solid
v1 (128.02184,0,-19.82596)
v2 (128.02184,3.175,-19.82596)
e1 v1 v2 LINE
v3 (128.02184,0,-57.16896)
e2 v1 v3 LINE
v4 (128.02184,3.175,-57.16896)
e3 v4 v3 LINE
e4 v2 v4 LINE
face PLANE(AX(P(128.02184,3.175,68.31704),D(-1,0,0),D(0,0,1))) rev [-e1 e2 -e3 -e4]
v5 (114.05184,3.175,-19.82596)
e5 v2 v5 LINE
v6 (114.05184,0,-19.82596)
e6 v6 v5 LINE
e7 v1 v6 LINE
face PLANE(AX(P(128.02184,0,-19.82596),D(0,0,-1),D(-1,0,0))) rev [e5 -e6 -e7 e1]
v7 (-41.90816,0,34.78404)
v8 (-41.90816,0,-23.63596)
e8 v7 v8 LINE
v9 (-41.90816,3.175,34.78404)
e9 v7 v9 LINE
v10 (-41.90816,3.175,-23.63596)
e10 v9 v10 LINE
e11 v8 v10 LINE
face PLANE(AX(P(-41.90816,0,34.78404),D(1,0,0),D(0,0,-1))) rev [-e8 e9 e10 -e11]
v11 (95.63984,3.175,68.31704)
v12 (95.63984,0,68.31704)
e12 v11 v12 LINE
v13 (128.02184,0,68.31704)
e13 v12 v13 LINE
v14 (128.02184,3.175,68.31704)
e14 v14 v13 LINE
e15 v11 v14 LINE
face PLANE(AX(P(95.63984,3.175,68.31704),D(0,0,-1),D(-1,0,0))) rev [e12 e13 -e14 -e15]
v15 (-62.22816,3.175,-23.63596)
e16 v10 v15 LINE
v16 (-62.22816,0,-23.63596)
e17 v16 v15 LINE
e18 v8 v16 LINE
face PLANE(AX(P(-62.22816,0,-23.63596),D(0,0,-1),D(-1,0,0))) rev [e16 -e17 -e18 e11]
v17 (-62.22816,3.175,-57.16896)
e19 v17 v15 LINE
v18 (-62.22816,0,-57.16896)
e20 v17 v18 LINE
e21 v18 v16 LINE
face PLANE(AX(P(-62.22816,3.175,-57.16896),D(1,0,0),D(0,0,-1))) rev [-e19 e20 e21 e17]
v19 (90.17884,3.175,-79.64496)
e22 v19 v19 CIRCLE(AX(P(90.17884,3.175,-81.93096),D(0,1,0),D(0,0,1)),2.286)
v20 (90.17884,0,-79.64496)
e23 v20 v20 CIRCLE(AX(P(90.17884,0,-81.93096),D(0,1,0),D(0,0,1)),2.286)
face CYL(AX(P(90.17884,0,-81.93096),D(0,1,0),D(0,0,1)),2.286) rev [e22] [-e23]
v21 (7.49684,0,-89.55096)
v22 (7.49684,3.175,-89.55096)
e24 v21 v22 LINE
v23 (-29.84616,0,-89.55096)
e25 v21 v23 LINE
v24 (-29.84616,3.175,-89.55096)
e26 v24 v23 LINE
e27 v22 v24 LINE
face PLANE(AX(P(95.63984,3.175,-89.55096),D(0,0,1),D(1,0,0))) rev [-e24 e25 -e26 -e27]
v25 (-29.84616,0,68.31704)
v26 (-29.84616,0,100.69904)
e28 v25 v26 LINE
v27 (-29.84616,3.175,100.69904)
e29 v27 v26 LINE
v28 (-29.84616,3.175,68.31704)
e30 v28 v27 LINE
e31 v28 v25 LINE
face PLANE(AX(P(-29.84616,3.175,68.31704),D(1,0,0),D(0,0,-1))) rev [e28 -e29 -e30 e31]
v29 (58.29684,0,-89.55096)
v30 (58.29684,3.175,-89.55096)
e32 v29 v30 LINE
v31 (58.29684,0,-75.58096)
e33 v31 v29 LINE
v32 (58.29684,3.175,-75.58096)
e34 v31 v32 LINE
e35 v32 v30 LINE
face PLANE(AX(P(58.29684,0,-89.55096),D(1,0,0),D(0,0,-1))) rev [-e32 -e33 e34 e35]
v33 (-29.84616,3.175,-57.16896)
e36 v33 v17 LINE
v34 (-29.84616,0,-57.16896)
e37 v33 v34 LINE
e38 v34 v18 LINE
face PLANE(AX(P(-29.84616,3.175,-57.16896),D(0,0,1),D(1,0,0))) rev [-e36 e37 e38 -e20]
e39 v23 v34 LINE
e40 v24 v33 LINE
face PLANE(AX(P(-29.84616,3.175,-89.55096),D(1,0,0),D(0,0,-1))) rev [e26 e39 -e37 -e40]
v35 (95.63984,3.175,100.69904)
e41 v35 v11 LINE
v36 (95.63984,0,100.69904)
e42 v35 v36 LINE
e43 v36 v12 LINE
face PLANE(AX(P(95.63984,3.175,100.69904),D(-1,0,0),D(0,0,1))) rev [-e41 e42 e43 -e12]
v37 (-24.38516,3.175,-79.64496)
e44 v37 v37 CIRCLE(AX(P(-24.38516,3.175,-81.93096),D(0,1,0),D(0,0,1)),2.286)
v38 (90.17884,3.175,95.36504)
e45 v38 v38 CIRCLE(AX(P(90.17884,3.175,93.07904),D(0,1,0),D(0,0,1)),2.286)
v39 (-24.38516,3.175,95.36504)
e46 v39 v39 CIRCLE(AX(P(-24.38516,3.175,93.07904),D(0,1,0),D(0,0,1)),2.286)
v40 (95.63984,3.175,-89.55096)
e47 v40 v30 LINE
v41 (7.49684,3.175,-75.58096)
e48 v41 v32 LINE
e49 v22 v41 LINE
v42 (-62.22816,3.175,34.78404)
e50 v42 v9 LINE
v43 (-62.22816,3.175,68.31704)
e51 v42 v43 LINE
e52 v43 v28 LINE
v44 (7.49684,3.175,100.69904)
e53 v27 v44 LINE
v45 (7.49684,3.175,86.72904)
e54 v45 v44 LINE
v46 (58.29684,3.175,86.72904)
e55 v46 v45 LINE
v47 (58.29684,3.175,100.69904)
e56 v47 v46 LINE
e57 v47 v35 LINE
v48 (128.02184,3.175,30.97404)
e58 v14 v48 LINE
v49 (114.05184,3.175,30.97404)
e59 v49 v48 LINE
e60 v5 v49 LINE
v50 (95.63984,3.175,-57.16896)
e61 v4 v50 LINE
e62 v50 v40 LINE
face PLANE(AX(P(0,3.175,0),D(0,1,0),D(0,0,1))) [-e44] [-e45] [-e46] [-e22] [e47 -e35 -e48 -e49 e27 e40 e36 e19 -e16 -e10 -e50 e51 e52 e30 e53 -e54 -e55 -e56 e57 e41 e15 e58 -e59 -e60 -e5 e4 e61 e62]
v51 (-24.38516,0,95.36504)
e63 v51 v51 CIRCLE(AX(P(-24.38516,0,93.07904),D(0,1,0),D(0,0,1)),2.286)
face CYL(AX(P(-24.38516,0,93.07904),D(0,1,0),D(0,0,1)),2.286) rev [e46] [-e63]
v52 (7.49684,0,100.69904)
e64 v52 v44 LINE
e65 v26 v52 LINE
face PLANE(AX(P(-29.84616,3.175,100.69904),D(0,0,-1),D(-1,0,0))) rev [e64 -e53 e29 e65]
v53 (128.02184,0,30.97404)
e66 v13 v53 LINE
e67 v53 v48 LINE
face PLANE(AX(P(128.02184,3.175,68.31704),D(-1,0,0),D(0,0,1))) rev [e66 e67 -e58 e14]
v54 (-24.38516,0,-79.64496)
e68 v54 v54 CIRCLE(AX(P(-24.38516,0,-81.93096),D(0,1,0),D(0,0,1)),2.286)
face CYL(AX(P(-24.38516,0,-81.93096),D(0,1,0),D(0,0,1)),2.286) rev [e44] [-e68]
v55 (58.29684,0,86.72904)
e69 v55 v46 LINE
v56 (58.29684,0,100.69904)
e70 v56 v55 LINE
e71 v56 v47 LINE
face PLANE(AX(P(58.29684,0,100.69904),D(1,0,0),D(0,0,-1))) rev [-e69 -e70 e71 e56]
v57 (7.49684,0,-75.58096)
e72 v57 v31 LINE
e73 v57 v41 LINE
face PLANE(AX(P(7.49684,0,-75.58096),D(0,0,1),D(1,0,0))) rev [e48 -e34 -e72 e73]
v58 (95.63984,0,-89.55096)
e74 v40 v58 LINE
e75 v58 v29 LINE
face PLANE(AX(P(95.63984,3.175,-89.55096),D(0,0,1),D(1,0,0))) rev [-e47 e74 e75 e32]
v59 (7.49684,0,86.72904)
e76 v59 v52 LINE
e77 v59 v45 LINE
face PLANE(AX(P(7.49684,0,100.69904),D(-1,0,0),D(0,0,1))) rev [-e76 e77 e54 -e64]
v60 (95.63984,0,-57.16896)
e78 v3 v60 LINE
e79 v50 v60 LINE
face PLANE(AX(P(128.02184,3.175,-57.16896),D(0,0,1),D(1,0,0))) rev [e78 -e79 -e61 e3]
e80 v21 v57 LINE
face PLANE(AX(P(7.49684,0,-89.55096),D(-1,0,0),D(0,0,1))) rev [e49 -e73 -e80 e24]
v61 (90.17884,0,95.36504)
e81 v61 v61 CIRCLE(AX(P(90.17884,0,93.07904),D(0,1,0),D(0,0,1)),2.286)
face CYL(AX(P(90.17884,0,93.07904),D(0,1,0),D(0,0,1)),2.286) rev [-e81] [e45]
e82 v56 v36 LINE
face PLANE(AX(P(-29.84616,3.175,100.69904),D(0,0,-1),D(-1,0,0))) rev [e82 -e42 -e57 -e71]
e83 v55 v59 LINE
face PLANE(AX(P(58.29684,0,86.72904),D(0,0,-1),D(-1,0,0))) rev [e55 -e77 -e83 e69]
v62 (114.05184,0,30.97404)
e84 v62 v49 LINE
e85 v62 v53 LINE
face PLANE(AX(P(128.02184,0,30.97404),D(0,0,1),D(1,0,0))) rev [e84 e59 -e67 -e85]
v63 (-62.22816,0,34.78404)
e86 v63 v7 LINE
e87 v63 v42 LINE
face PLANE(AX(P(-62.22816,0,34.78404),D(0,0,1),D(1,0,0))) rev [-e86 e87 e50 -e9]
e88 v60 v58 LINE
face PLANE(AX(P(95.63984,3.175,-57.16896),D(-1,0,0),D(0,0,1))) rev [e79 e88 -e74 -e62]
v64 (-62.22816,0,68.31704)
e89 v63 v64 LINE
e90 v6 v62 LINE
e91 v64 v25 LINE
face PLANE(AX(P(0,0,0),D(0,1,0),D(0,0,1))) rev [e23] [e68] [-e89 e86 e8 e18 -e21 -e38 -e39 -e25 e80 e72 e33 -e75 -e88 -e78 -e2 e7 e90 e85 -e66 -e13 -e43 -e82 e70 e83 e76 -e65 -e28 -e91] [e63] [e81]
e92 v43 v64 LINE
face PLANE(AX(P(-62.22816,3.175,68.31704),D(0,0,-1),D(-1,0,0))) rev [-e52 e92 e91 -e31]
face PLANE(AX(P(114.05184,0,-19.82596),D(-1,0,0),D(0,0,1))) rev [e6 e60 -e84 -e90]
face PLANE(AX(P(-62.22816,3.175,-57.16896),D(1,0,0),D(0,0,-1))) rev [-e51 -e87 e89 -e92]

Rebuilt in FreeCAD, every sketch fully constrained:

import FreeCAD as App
import Part
import Sketcher
from FreeCAD import Vector
Q = App.Units.Quantity

doc = App.newDocument("Part")
body = doc.addObject("PartDesign::Body", "Body")

sketch1 = body.newObject("Sketcher::SketchObject", "Sketch")
sketch1.AttachmentSupport = (doc.getObject("XZ_Plane"), [""])
sketch1.MapMode = "FlatFace"
sketch1.addGeometry([
    Part.LineSegment(Vector(-62, 68, 0), Vector(-30, 68, 0)),
    Part.LineSegment(Vector(-30, 68, 0), Vector(-30, 101, 0)),
    Part.LineSegment(Vector(-30, 101, 0), Vector(96, 101, 0)),
    Part.LineSegment(Vector(96, 101, 0), Vector(96, 68, 0)),
    Part.LineSegment(Vector(96, 68, 0), Vector(128, 68, 0)),
    Part.LineSegment(Vector(128, 68, 0), Vector(128, -57, 0)),
    Part.LineSegment(Vector(128, -57, 0), Vector(96, -57, 0)),
    Part.LineSegment(Vector(96, -57, 0), Vector(96, -90, 0)),
    Part.LineSegment(Vector(96, -90, 0), Vector(-30, -90, 0)),
    Part.LineSegment(Vector(-30, -90, 0), Vector(-30, -57, 0)),
    Part.LineSegment(Vector(-30, -57, 0), Vector(-62, -57, 0)),
    Part.LineSegment(Vector(-62, -57, 0), Vector(-62, 68, 0)),
], False)
sketch1.addConstraint([
    Sketcher.Constraint("Coincident", 0, 2, 1, 1),
    Sketcher.Constraint("Coincident", 1, 2, 2, 1),
    Sketcher.Constraint("Coincident", 2, 2, 3, 1),
    Sketcher.Constraint("Coincident", 3, 2, 4, 1),
    Sketcher.Constraint("Coincident", 4, 2, 5, 1),
    Sketcher.Constraint("Coincident", 5, 2, 6, 1),
    Sketcher.Constraint("Coincident", 6, 2, 7, 1),
    Sketcher.Constraint("Coincident", 7, 2, 8, 1),
    Sketcher.Constraint("Coincident", 8, 2, 9, 1),
    Sketcher.Constraint("Coincident", 9, 2, 10, 1),
    Sketcher.Constraint("Coincident", 10, 2, 11, 1),
    Sketcher.Constraint("Coincident", 11, 2, 0, 1),
    Sketcher.Constraint("Horizontal", 0),
    Sketcher.Constraint("Vertical", 1),
    Sketcher.Constraint("Horizontal", 2),
    Sketcher.Constraint("Vertical", 3),
    Sketcher.Constraint("Horizontal", 4),
    Sketcher.Constraint("Vertical", 5),
    Sketcher.Constraint("Horizontal", 6),
    Sketcher.Constraint("Vertical", 7),
    Sketcher.Constraint("Horizontal", 8),
    Sketcher.Constraint("Vertical", 9),
    Sketcher.Constraint("Horizontal", 10),
    Sketcher.Constraint("Vertical", 11),
    Sketcher.Constraint("Horizontal", 0, 2, 3, 2),
    Sketcher.Constraint("Horizontal", 6, 2, 9, 2),
    Sketcher.Constraint("Vertical", 3, 2, 6, 2),
    Sketcher.Constraint("Vertical", 1, 2, 8, 2),
    Sketcher.Constraint("Equal", 0, 4),
    Sketcher.Constraint("Equal", 10, 1),
    Sketcher.Constraint("Equal", 8, 5),
    Sketcher.Constraint("Equal", 3, 7),
    Sketcher.Constraint("DistanceX", 0, 1, 0, 2, 32.382),
    Sketcher.Constraint("DistanceX", 2, 1, 2, 2, 125.486),
    Sketcher.Constraint("DistanceX", 0, 2, -1, 1, 29.84616),
    Sketcher.Constraint("DistanceY", -1, 1, 0, 2, 68.31704),
])
pad1 = body.newObject("PartDesign::Pad", "Pad")
pad1.Profile = sketch1
pad1.Length = Q("0.125 in")
pad1.Reversed = True

sketch2 = body.newObject("Sketcher::SketchObject", "Sketch001")
sketch2.AttachmentSupport = (doc.getObject("XZ_Plane"), [""])
sketch2.MapMode = "FlatFace"
sketch2.AttachmentOffset = App.Placement(Vector(0, 0, -0.125 * 25.4), App.Rotation())
sketch2.addGeometry([
    Part.Circle(Vector(-24.4, -81.9, 0), Vector(0, 0, 1), 2.3),
    Part.Circle(Vector(90.2, -81.9, 0), Vector(0, 0, 1), 2.3),
    Part.Circle(Vector(90.2, 93.1, 0), Vector(0, 0, 1), 2.3),
    Part.Circle(Vector(-24.4, 93.1, 0), Vector(0, 0, 1), 2.3),
], False)
sketch2.addConstraint([
    Sketcher.Constraint("Equal", 0, 1),
    Sketcher.Constraint("Equal", 1, 2),
    Sketcher.Constraint("Equal", 2, 3),
    Sketcher.Constraint("Horizontal", 0, 3, 1, 3),
    Sketcher.Constraint("Horizontal", 2, 3, 3, 3),
    Sketcher.Constraint("Vertical", 1, 3, 2, 3),
    Sketcher.Constraint("Vertical", 0, 3, 3, 3),
    Sketcher.Constraint("Diameter", 0, Q("0.18 in")),
    Sketcher.Constraint("DistanceX", 0, 3, 1, 3, 114.564),
    Sketcher.Constraint("DistanceY", 1, 3, 2, 3, 175.01),
    Sketcher.Constraint("DistanceX", 0, 3, -1, 1, 24.38516),
    Sketcher.Constraint("DistanceY", 0, 3, -1, 1, 81.93096),
])
pocket1 = body.newObject("PartDesign::Pocket", "Pocket")
pocket1.Profile = sketch2
pocket1.Type = "ThroughAll"
pocket1.Reversed = True

sketch3 = body.newObject("Sketcher::SketchObject", "Sketch002")
sketch3.AttachmentSupport = (doc.getObject("XZ_Plane"), [""])
sketch3.MapMode = "FlatFace"
sketch3.AttachmentOffset = App.Placement(Vector(0, 0, -0.125 * 25.4), App.Rotation())
sketch3.addGeometry([
    Part.LineSegment(Vector(-62, -24, 0), Vector(-62, 35, 0)),
    Part.LineSegment(Vector(-62, 35, 0), Vector(-42, 35, 0)),
    Part.LineSegment(Vector(-42, 35, 0), Vector(-42, -24, 0)),
    Part.LineSegment(Vector(-42, -24, 0), Vector(-62, -24, 0)),
    Part.LineSegment(Vector(7, -90, 0), Vector(7, -76, 0)),
    Part.LineSegment(Vector(7, -76, 0), Vector(58, -76, 0)),
    Part.LineSegment(Vector(58, -76, 0), Vector(58, -90, 0)),
    Part.LineSegment(Vector(58, -90, 0), Vector(7, -90, 0)),
    Part.LineSegment(Vector(114, -20, 0), Vector(114, 31, 0)),
    Part.LineSegment(Vector(114, 31, 0), Vector(128, 31, 0)),
    Part.LineSegment(Vector(128, 31, 0), Vector(128, -20, 0)),
    Part.LineSegment(Vector(128, -20, 0), Vector(114, -20, 0)),
    Part.LineSegment(Vector(7, 87, 0), Vector(7, 101, 0)),
    Part.LineSegment(Vector(7, 101, 0), Vector(58, 101, 0)),
    Part.LineSegment(Vector(58, 101, 0), Vector(58, 87, 0)),
    Part.LineSegment(Vector(58, 87, 0), Vector(7, 87, 0)),
], False)
sketch3.addConstraint([
    Sketcher.Constraint("Coincident", 0, 2, 1, 1),
    Sketcher.Constraint("Coincident", 1, 2, 2, 1),
    Sketcher.Constraint("Coincident", 2, 2, 3, 1),
    Sketcher.Constraint("Coincident", 3, 2, 0, 1),
    Sketcher.Constraint("Coincident", 4, 2, 5, 1),
    Sketcher.Constraint("Coincident", 5, 2, 6, 1),
    Sketcher.Constraint("Coincident", 6, 2, 7, 1),
    Sketcher.Constraint("Coincident", 7, 2, 4, 1),
    Sketcher.Constraint("Coincident", 8, 2, 9, 1),
    Sketcher.Constraint("Coincident", 9, 2, 10, 1),
    Sketcher.Constraint("Coincident", 10, 2, 11, 1),
    Sketcher.Constraint("Coincident", 11, 2, 8, 1),
    Sketcher.Constraint("Coincident", 12, 2, 13, 1),
    Sketcher.Constraint("Coincident", 13, 2, 14, 1),
    Sketcher.Constraint("Coincident", 14, 2, 15, 1),
    Sketcher.Constraint("Coincident", 15, 2, 12, 1),
    Sketcher.Constraint("Vertical", 0),
    Sketcher.Constraint("Horizontal", 1),
    Sketcher.Constraint("Vertical", 2),
    Sketcher.Constraint("Horizontal", 3),
    Sketcher.Constraint("Vertical", 4),
    Sketcher.Constraint("Horizontal", 5),
    Sketcher.Constraint("Vertical", 6),
    Sketcher.Constraint("Horizontal", 7),
    Sketcher.Constraint("Vertical", 8),
    Sketcher.Constraint("Horizontal", 9),
    Sketcher.Constraint("Vertical", 10),
    Sketcher.Constraint("Horizontal", 11),
    Sketcher.Constraint("Vertical", 12),
    Sketcher.Constraint("Horizontal", 13),
    Sketcher.Constraint("Vertical", 14),
    Sketcher.Constraint("Horizontal", 15),
    Sketcher.Constraint("Vertical", 7, 2, 12, 2),
    Sketcher.Constraint("Vertical", 6, 2, 13, 2),
    Sketcher.Constraint("Equal", 11, 4),
    Sketcher.Constraint("Equal", 15, 8),
    Sketcher.Constraint("Equal", 6, 12),
    Sketcher.Constraint("DistanceX", 5, 1, 5, 2, Q("2 in")),
    Sketcher.Constraint("DistanceX", 1, 1, 1, 2, Q("0.8 in")),
    Sketcher.Constraint("DistanceY", 0, 1, 0, 2, Q("2.3 in")),
    Sketcher.Constraint("DistanceX", 9, 1, 9, 2, Q("0.55 in")),
    Sketcher.Constraint("DistanceY", 8, 2, 1, 2, Q("0.15 in")),
    Sketcher.Constraint("DistanceX", 2, 2, 4, 2, 49.405),
    Sketcher.Constraint("DistanceY", 4, 2, 2, 2, 51.945),
    Sketcher.Constraint("DistanceX", 5, 2, 8, 2, 55.755),
    Sketcher.Constraint("DistanceY", 1, 2, 12, 2, 65.915),
    Sketcher.Constraint("DistanceX", 0, 2, -1, 1, 62.22816),
    Sketcher.Constraint("DistanceY", -1, 1, 0, 2, 34.78404),
])
pocket2 = body.newObject("PartDesign::Pocket", "Pocket001")
pocket2.Profile = sketch3
pocket2.Type = "ThroughAll"
pocket2.Reversed = True

doc.recompute()
